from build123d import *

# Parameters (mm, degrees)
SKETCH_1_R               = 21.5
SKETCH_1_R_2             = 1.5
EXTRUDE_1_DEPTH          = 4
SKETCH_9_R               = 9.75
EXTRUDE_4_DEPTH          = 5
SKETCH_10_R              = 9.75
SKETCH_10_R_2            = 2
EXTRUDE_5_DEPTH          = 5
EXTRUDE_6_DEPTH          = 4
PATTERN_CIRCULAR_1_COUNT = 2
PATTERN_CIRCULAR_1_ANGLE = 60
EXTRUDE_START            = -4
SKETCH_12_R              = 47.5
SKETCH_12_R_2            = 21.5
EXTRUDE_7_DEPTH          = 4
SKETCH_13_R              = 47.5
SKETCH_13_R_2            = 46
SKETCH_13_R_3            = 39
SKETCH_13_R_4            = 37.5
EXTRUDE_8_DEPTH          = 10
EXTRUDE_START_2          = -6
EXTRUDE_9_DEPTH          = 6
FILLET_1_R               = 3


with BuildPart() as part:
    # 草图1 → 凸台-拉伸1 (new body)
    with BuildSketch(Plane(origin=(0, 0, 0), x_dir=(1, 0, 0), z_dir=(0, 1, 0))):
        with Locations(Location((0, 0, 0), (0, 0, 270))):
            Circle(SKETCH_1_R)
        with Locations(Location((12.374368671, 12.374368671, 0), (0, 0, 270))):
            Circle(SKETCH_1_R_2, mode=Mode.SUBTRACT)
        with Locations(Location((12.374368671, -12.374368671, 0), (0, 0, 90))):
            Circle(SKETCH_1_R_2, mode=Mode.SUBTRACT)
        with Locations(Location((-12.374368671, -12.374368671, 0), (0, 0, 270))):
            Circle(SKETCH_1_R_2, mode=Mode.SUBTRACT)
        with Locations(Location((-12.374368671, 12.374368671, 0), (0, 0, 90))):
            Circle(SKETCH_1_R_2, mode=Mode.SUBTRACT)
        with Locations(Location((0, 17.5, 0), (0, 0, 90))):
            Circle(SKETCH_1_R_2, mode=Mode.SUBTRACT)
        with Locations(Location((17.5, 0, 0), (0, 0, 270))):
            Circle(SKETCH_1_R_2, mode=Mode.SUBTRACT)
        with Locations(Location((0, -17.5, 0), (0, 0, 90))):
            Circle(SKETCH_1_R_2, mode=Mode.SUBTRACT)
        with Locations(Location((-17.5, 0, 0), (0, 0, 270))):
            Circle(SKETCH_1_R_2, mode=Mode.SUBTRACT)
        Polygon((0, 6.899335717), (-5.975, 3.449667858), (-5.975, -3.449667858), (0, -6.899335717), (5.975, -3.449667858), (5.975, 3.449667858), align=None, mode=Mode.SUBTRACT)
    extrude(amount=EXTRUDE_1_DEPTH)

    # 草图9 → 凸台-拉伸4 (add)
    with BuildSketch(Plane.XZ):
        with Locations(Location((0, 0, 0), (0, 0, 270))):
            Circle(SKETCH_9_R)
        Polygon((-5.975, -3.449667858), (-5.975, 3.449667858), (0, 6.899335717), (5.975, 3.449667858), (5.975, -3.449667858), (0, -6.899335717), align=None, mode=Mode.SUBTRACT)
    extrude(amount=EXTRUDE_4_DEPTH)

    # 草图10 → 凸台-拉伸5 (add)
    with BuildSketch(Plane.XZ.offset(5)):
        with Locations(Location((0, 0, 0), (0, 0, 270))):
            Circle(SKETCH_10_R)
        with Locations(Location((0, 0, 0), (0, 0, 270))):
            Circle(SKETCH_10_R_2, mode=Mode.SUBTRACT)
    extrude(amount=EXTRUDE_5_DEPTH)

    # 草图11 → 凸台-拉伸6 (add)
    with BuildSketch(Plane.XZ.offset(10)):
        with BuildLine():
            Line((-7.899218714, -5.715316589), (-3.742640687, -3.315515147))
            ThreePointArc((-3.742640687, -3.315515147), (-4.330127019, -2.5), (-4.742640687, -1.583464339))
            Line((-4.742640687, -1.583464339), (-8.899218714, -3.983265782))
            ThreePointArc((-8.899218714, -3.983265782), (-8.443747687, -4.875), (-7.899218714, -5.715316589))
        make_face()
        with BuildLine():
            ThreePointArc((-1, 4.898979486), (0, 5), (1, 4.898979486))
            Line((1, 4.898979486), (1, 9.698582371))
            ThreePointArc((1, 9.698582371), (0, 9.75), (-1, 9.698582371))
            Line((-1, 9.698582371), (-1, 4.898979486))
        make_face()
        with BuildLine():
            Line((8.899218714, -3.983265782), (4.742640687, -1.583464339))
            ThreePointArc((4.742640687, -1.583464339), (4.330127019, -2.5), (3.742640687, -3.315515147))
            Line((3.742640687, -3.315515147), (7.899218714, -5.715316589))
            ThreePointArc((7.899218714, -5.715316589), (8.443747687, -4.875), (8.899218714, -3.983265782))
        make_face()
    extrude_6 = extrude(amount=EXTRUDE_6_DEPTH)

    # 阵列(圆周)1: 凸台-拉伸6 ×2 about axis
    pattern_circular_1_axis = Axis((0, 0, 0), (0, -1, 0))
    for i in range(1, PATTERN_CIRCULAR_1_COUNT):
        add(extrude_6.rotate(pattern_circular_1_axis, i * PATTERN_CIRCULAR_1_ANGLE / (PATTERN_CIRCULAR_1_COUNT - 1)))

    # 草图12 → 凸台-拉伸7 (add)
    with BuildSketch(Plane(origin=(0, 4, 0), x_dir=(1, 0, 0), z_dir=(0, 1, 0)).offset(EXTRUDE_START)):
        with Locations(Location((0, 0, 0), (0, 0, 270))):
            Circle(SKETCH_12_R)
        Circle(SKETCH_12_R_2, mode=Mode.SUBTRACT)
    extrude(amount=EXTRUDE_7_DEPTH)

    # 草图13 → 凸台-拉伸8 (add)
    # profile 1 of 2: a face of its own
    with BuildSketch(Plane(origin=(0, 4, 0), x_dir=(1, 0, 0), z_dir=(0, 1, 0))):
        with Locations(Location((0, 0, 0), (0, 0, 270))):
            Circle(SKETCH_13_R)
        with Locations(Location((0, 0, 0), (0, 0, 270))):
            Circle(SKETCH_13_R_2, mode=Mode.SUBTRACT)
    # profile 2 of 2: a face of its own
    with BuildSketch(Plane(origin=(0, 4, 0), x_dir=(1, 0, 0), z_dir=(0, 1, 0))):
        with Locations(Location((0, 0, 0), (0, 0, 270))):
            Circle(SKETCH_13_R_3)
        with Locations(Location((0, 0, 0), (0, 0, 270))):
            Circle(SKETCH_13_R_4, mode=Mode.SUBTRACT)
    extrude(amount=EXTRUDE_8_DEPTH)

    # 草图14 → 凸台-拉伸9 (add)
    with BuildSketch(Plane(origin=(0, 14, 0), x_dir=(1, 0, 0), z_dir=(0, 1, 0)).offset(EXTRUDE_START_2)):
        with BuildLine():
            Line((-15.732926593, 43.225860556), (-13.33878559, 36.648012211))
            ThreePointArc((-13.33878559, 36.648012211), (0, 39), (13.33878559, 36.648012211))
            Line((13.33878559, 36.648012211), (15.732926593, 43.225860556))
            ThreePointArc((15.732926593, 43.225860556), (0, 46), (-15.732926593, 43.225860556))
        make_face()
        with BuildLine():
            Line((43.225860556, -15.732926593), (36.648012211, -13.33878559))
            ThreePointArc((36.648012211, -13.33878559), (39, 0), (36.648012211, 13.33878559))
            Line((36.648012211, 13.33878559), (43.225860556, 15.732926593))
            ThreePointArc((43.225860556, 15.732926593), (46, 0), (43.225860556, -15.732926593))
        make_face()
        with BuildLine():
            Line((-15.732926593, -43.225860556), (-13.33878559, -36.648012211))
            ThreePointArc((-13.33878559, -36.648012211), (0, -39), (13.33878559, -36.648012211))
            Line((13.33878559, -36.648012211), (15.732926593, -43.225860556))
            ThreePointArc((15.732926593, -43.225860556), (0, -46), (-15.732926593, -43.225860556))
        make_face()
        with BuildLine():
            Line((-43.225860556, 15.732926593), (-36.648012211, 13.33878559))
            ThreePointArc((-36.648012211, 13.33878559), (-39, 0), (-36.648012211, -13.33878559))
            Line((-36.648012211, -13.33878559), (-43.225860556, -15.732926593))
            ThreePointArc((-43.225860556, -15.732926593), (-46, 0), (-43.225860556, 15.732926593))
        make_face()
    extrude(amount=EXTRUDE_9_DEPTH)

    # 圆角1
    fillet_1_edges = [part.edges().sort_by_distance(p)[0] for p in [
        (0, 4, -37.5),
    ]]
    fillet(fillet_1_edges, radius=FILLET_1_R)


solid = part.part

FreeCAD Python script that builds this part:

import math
import FreeCAD as App
import Part
import Sketcher
Q = App.Units.Quantity


def edges_at(feature, points):
    """Names of the edges that pass closest to the given points."""
    edges = feature.Shape.Edges
    near = lambda p: min(range(len(edges)), key=lambda i: edges[i].distToShape(Part.Vertex(*p))[0])
    return sorted({f"Edge{near(p) + 1}" for p in points})


def add_polygon(sketch, points):
    """Adds a closed chain of lines whose ends are joined by coincident constraints."""
    first, n = sketch.GeometryCount, len(points)
    for a, b in zip(points, points[1:] + points[:1]):
        sketch.addGeometry(Part.LineSegment(App.Vector(*a, 0), App.Vector(*b, 0)), False)
    for i in range(n):
        sketch.addConstraint(Sketcher.Constraint("Coincident", first + i, 2, first + (i + 1) % n, 1))

doc = App.newDocument("Part")
body = doc.addObject("PartDesign::Body", "Body")

# Sketch on XZ plane
sketch1 = body.newObject("Sketcher::SketchObject", "Sketch")
sketch1.AttachmentSupport = (doc.getObject("XZ_Plane"), [""])
sketch1.MapMode = "FlatFace"
sketch1.addGeometry(Part.Circle(App.Vector(0, 0, 0), App.Vector(0, 0, 1), 21.5), False)  # 0
sketch1.addGeometry(Part.Circle(App.Vector(-12.4, -12.4, 0), App.Vector(0, 0, 1), 1.5), False)  # 1
sketch1.addGeometry(Part.Circle(App.Vector(0, -17.5, 0), App.Vector(0, 0, 1), 1.5), False)  # 2
sketch1.addGeometry(Part.Circle(App.Vector(-17.5, 0, 0), App.Vector(0, 0, 1), 1.5), False)  # 3
sketch1.addGeometry(Part.Circle(App.Vector(-12.4, 12.4, 0), App.Vector(0, 0, 1), 1.5), False)  # 4
sketch1.addGeometry(Part.Circle(App.Vector(12.4, -12.4, 0), App.Vector(0, 0, 1), 1.5), False)  # 5
sketch1.addGeometry(Part.Circle(App.Vector(17.5, 0, 0), App.Vector(0, 0, 1), 1.5), False)  # 6
add_polygon(sketch1, [(-6, -3.4), (0, -6.9), (6, -3.4), (6, 3.4), (0, 6.9), (-6, 3.4)])  # lines 7-12
sketch1.addGeometry(Part.Circle(App.Vector(0, 17.5, 0), App.Vector(0, 0, 1), 1.5), False)  # 13
sketch1.addGeometry(Part.Circle(App.Vector(12.4, 12.4, 0), App.Vector(0, 0, 1), 1.5), False)  # 14
sketch1.addConstraint([
    Sketcher.Constraint("Vertical", 9),
    Sketcher.Constraint("Vertical", 12),
    Sketcher.Constraint("Coincident", 0, 3, -1, 1),
    Sketcher.Constraint("Equal", 1, 2),
    Sketcher.Constraint("Equal", 2, 3),
    Sketcher.Constraint("Equal", 3, 4),
    Sketcher.Constraint("Equal", 4, 5),
    Sketcher.Constraint("Equal", 5, 6),
    Sketcher.Constraint("Equal", 6, 13),
    Sketcher.Constraint("Equal", 13, 14),
    Sketcher.Constraint("Symmetric", 4, 3, 5, 3, -1, 1),
    Sketcher.Constraint("Symmetric", 3, 3, 6, 3, -1, 1),
    Sketcher.Constraint("Symmetric", 2, 3, 13, 3, -1, 1),
    Sketcher.Constraint("Symmetric", 1, 3, 14, 3, -1, 1),
    Sketcher.Constraint("Symmetric", 7, 2, 10, 2, -1, 1),
    Sketcher.Constraint("Symmetric", 8, 2, 11, 2, -1, 1),
    Sketcher.Constraint("Symmetric", 1, 3, 5, 3, -2),
    Sketcher.Constraint("PointOnObject", 2, 3, -2),
    Sketcher.Constraint("PointOnObject", 3, 3, -1),
    Sketcher.Constraint("PointOnObject", 7, 2, -2),
    Sketcher.Constraint("Parallel", 7, 10),
    Sketcher.Constraint("Horizontal", 9, 2, 11, 2),
    Sketcher.Constraint("Diameter", 0, 43.0),
    Sketcher.Constraint("Diameter", 1, 3.0),
    Sketcher.Constraint("Angle", 7, Q("-30 deg")),
    Sketcher.Constraint("DistanceY", 2, 3, -1, 1, 17.5),
    Sketcher.Constraint("DistanceX", 3, 3, -1, 1, 17.5),
    Sketcher.Constraint("DistanceX", 11, 2, 9, 2, 11.95),
    Sketcher.Constraint("DistanceY", 5, 3, 8, 2, 8.924701),
    Sketcher.Constraint("DistanceY", 9, 1, 9, 2, 6.899336),
    Sketcher.Constraint("DistanceX", 1, 3, -1, 1, 12.374369),
])
pad1 = body.newObject("PartDesign::Pad", "Pad")
pad1.Profile = sketch1
pad1.Length = 4
pad1.Reversed = True

# Sketch on XZ plane
sketch2 = body.newObject("Sketcher::SketchObject", "Sketch001")
sketch2.AttachmentSupport = (doc.getObject("XZ_Plane"), [""])
sketch2.MapMode = "FlatFace"
sketch2.addGeometry(Part.Circle(App.Vector(0, 0, 0), App.Vector(0, 0, 1), 10), False)  # 0
add_polygon(sketch2, [(0, -7), (-6, -3), (-6, 3), (0, 7), (6, 3), (6, -3)])  # lines 1-6
sketch2.addConstraint([
    Sketcher.Constraint("Vertical", 2),
    Sketcher.Constraint("Vertical", 5),
    Sketcher.Constraint("Coincident", 0, 3, -1, 1),
    Sketcher.Constraint("Symmetric", 1, 2, 4, 2, -1, 1),
    Sketcher.Constraint("Symmetric", 3, 2, 6, 2, -1, 1),
    Sketcher.Constraint("PointOnObject", 3, 2, -2),
    Sketcher.Constraint("Parallel", 3, 6),
    Sketcher.Constraint("Horizontal", 2, 2, 4, 2),
    Sketcher.Constraint("Diameter", 0, 19.5),
    Sketcher.Constraint("Angle", 1, Q("150 deg")),
    Sketcher.Constraint("DistanceX", 2, 2, 4, 2, 11.95),
    Sketcher.Constraint("DistanceY", 2, 1, 2, 2, 6.899336),
])
pad2 = body.newObject("PartDesign::Pad", "Pad001")
pad2.Profile = sketch2
pad2.Length = 5

# Sketch on XZ plane
sketch3 = body.newObject("Sketcher::SketchObject", "Sketch002")
sketch3.AttachmentSupport = (doc.getObject("XZ_Plane"), [""])
sketch3.MapMode = "FlatFace"
sketch3.AttachmentOffset = App.Placement(App.Vector(0, 0, 5), App.Rotation())
sketch3.addGeometry([
    Part.Circle(App.Vector(0, 0, 0), App.Vector(0, 0, 1), 9.8),
    Part.Circle(App.Vector(0, 0, 0), App.Vector(0, 0, 1), 2),
], False)
sketch3.addConstraint([
    Sketcher.Constraint("Coincident", 0, 3, -1, 1),
    Sketcher.Constraint("Coincident", 1, 3, -1, 1),
    Sketcher.Constraint("Diameter", 1, 4.0),
    Sketcher.Constraint("Diameter", 0, 19.5),
])
pad3 = body.newObject("PartDesign::Pad", "Pad002")
pad3.Profile = sketch3
pad3.Length = 5

# Sketch on XZ plane
sketch4 = body.newObject("Sketcher::SketchObject", "Sketch003")
sketch4.AttachmentSupport = (doc.getObject("XZ_Plane"), [""])
sketch4.MapMode = "FlatFace"
sketch4.AttachmentOffset = App.Placement(App.Vector(0, 0, 10), App.Rotation())
sketch4.addGeometry([
    Part.LineSegment(App.Vector(-7.9, -5.7, 0), App.Vector(-3.7, -3.3, 0)),  # 0
    Part.ArcOfCircle(Part.Circle(App.Vector(0, 0, 0), App.Vector(0, 0, 1), 5), math.radians(-162), math.radians(-138)),  # 1
    Part.LineSegment(App.Vector(-4.7, -1.6, 0), App.Vector(-8.9, -4, 0)),  # 2
    Part.ArcOfCircle(Part.Circle(App.Vector(0, 0, 0), App.Vector(0, 0, 1), 9.8), math.radians(-155.89), math.radians(-144.11)),  # 3
    Part.ArcOfCircle(Part.Circle(App.Vector(0, 0, 0), App.Vector(0, 0, 1), 5), math.radians(78), math.radians(102)),  # 4
    Part.LineSegment(App.Vector(1, 4.9, 0), App.Vector(1, 9.7, 0)),  # 5
    Part.ArcOfCircle(Part.Circle(App.Vector(0, 0, 0), App.Vector(0, 0, 1), 9.8), math.radians(84.11), math.radians(95.89)),  # 6
    Part.LineSegment(App.Vector(-1, 9.7, 0), App.Vector(-1, 4.9, 0)),  # 7
    Part.LineSegment(App.Vector(8.9, -4, 0), App.Vector(4.7, -1.6, 0)),  # 8
    Part.ArcOfCircle(Part.Circle(App.Vector(0, 0, 0), App.Vector(0, 0, 1), 5), math.radians(-42), math.radians(-18)),  # 9
    Part.LineSegment(App.Vector(3.7, -3.3, 0), App.Vector(7.9, -5.7, 0)),  # 10
    Part.ArcOfCircle(Part.Circle(App.Vector(0, 0, 0), App.Vector(0, 0, 1), 9.8), math.radians(-35.89), math.radians(-24.11)),  # 11
], False)
sketch4.addConstraint([
    Sketcher.Constraint("Coincident", 0, 2, 1, 2),
    Sketcher.Constraint("Coincident", 1, 1, 2, 1),
    Sketcher.Constraint("Coincident", 2, 2, 3, 1),
    Sketcher.Constraint("Coincident", 3, 2, 0, 1),
    Sketcher.Constraint("Coincident", 4, 1, 5, 1),
    Sketcher.Constraint("Coincident", 5, 2, 6, 1),
    Sketcher.Constraint("Coincident", 6, 2, 7, 1),
    Sketcher.Constraint("Coincident", 7, 2, 4, 2),
    Sketcher.Constraint("Coincident", 8, 2, 9, 2),
    Sketcher.Constraint("Coincident", 9, 1, 10, 1),
    Sketcher.Constraint("Coincident", 10, 2, 11, 1),
    Sketcher.Constraint("Coincident", 11, 2, 8, 1),
    Sketcher.Constraint("Vertical", 5),
    Sketcher.Constraint("Vertical", 7),
    Sketcher.Constraint("Coincident", 1, 3, -1, 1),
    Sketcher.Constraint("Coincident", 3, 3, -1, 1),
    Sketcher.Constraint("Coincident", 4, 3, -1, 1),
    Sketcher.Constraint("Coincident", 6, 3, -1, 1),
    Sketcher.Constraint("Coincident", 9, 3, -1, 1),
    Sketcher.Constraint("Coincident", 11, 3, -1, 1),
    Sketcher.Constraint("Equal", 1, 4),
    Sketcher.Constraint("Equal", 3, 6),
    Sketcher.Constraint("Equal", 4, 9),
    Sketcher.Constraint("Equal", 6, 11),
    Sketcher.Constraint("Parallel", 0, 2),
    Sketcher.Constraint("Parallel", 8, 10),
    Sketcher.Constraint("Horizontal", 5, 2, 6, 2),
    Sketcher.Constraint("Horizontal", 1, 1, 8, 2),
    Sketcher.Constraint("Horizontal", 0, 2, 9, 1),
    Sketcher.Constraint("Horizontal", 3, 2, 10, 2),
    Sketcher.Constraint("Equal", 0, 2),
    Sketcher.Constraint("Radius", 1, 5.0),
    Sketcher.Constraint("Angle", 0, Q("30 deg")),
    Sketcher.Constraint("Radius", 3, 9.75),
    Sketcher.Constraint("DistanceX", -1, 1, 4, 1, 1.0),
    Sketcher.Constraint("DistanceX", 1, 1, 0, 2, 1.0),
])
pad4 = body.newObject("PartDesign::Pad", "Pad003")
pad4.Profile = sketch4
pad4.Length = 4
doc.recompute()

polarpattern = body.newObject("PartDesign::PolarPattern", "PolarPattern")
polarpattern.Originals = [pad4]
polarpattern.Axis = (doc.getObject("Y_Axis"), [""])
polarpattern.Angle = 60
polarpattern.Occurrences = 2
polarpattern.Reversed = True
body.Tip = polarpattern

# Sketch on XZ plane
sketch5 = body.newObject("Sketcher::SketchObject", "Sketch004")
sketch5.AttachmentSupport = (doc.getObject("XZ_Plane"), [""])
sketch5.MapMode = "FlatFace"
sketch5.addGeometry([
    Part.Circle(App.Vector(0, 0, 0), App.Vector(0, 0, 1), 48),
    Part.Circle(App.Vector(0, 0, 0), App.Vector(0, 0, 1), 22),
], False)
sketch5.addConstraint([
    Sketcher.Constraint("Coincident", 0, 3, -1, 1),
    Sketcher.Constraint("Coincident", 1, 3, -1, 1),
    Sketcher.Constraint("Diameter", 0, 95.0),
    Sketcher.Constraint("Diameter", 1, 43.0),
])
pad5 = body.newObject("PartDesign::Pad", "Pad004")
pad5.Profile = sketch5
pad5.Length = 4
pad5.Reversed = True

# Sketch on XZ plane
sketch6 = body.newObject("Sketcher::SketchObject", "Sketch005")
sketch6.AttachmentSupport = (doc.getObject("XZ_Plane"), [""])
sketch6.MapMode = "FlatFace"
sketch6.AttachmentOffset = App.Placement(App.Vector(0, 0, -4), App.Rotation())
sketch6.addGeometry([
    Part.Circle(App.Vector(0, 0, 0), App.Vector(0, 0, 1), 48),
    Part.Circle(App.Vector(0, 0, 0), App.Vector(0, 0, 1), 46),
    Part.Circle(App.Vector(0, 0, 0), App.Vector(0, 0, 1), 39),
    Part.Circle(App.Vector(0, 0, 0), App.Vector(0, 0, 1), 38),
], False)
sketch6.addConstraint([
    Sketcher.Constraint("Coincident", 0, 3, -1, 1),
    Sketcher.Constraint("Coincident", 1, 3, -1, 1),
    Sketcher.Constraint("Coincident", 2, 3, -1, 1),
    Sketcher.Constraint("Coincident", 3, 3, -1, 1),
    Sketcher.Constraint("Diameter", 0, 95.0),
    Sketcher.Constraint("Diameter", 1, 92.0),
    Sketcher.Constraint("Diameter", 2, 78.0),
    Sketcher.Constraint("Diameter", 3, 75.0),
])
pad6 = body.newObject("PartDesign::Pad", "Pad005")
pad6.Profile = sketch6
pad6.Length = 10
pad6.Reversed = True

# Sketch on XZ plane
sketch7 = body.newObject("Sketcher::SketchObject", "Sketch006")
sketch7.AttachmentSupport = (doc.getObject("XZ_Plane"), [""])
sketch7.MapMode = "FlatFace"
sketch7.AttachmentOffset = App.Placement(App.Vector(0, 0, -8), App.Rotation())
sketch7.addGeometry([
    Part.LineSegment(App.Vector(-16, -43, 0), App.Vector(-13, -37, 0)),  # 0
    Part.ArcOfCircle(Part.Circle(App.Vector(0, 0, 0), App.Vector(0, 0, 1), 39), math.radians(-110), math.radians(-70)),  # 1
    Part.LineSegment(App.Vector(13, -37, 0), App.Vector(16, -43, 0)),  # 2
    Part.ArcOfCircle(Part.Circle(App.Vector(0, 0, 0), App.Vector(0, 0, 1), 46), math.radians(-110), math.radians(-70)),  # 3
    Part.LineSegment(App.Vector(37, 13, 0), App.Vector(43, 16, 0)),  # 4
    Part.ArcOfCircle(Part.Circle(App.Vector(0, 0, 0), App.Vector(0, 0, 1), 46), math.radians(-20), math.radians(20)),  # 5
    Part.LineSegment(App.Vector(43, -16, 0), App.Vector(37, -13, 0)),  # 6
    Part.ArcOfCircle(Part.Circle(App.Vector(0, 0, 0), App.Vector(0, 0, 1), 39), math.radians(-20), math.radians(20)),  # 7
    Part.LineSegment(App.Vector(-13, 37, 0), App.Vector(-16, 43, 0)),  # 8
    Part.ArcOfCircle(Part.Circle(App.Vector(0, 0, 0), App.Vector(0, 0, 1), 46), math.radians(70), math.radians(110)),  # 9
    Part.LineSegment(App.Vector(16, 43, 0), App.Vector(13, 37, 0)),  # 10
    Part.ArcOfCircle(Part.Circle(App.Vector(0, 0, 0), App.Vector(0, 0, 1), 39), math.radians(70), math.radians(110)),  # 11
    Part.LineSegment(App.Vector(-37, -13, 0), App.Vector(-43, -16, 0)),  # 12
    Part.ArcOfCircle(Part.Circle(App.Vector(0, 0, 0), App.Vector(0, 0, 1), 46), math.radians(160), math.radians(200)),  # 13
    Part.LineSegment(App.Vector(-43, 16, 0), App.Vector(-37, 13, 0)),  # 14
    Part.ArcOfCircle(Part.Circle(App.Vector(0, 0, 0), App.Vector(0, 0, 1), 39), math.radians(160), math.radians(200)),  # 15
], False)
sketch7.addConstraint([
    Sketcher.Constraint("Coincident", 0, 2, 1, 1),
    Sketcher.Constraint("Coincident", 1, 2, 2, 1),
    Sketcher.Constraint("Coincident", 2, 2, 3, 2),
    Sketcher.Constraint("Coincident", 3, 1, 0, 1),
    Sketcher.Constraint("Coincident", 4, 2, 5, 2),
    Sketcher.Constraint("Coincident", 5, 1, 6, 1),
    Sketcher.Constraint("Coincident", 6, 2, 7, 1),
    Sketcher.Constraint("Coincident", 7, 2, 4, 1),
    Sketcher.Constraint("Coincident", 8, 2, 9, 2),
    Sketcher.Constraint("Coincident", 9, 1, 10, 1),
    Sketcher.Constraint("Coincident", 10, 2, 11, 1),
    Sketcher.Constraint("Coincident", 11, 2, 8, 1),
    Sketcher.Constraint("Coincident", 12, 2, 13, 2),
    Sketcher.Constraint("Coincident", 13, 1, 14, 1),
    Sketcher.Constraint("Coincident", 14, 2, 15, 1),
    Sketcher.Constraint("Coincident", 15, 2, 12, 1),
    Sketcher.Constraint("Coincident", 1, 3, -1, 1),
    Sketcher.Constraint("Coincident", 3, 3, -1, 1),
    Sketcher.Constraint("Coincident", 5, 3, -1, 1),
    Sketcher.Constraint("Coincident", 7, 3, -1, 1),
    Sketcher.Constraint("Coincident", 9, 3, -1, 1),
    Sketcher.Constraint("Coincident", 11, 3, -1, 1),
    Sketcher.Constraint("Coincident", 13, 3, -1, 1),
    Sketcher.Constraint("Coincident", 15, 3, -1, 1),
    Sketcher.Constraint("Equal", 3, 5),
    Sketcher.Constraint("Equal", 1, 7),
    Sketcher.Constraint("Equal", 5, 9),
    Sketcher.Constraint("Equal", 7, 11),
    Sketcher.Constraint("Equal", 9, 13),
    Sketcher.Constraint("Equal", 11, 15),
    Sketcher.Constraint("Perpendicular", 2, 4),
    Sketcher.Constraint("Perpendicular", 0, 6),
    Sketcher.Constraint("Perpendicular", 4, 8),
    Sketcher.Constraint("Perpendicular", 6, 10),
    Sketcher.Constraint("Perpendicular", 8, 12),
    Sketcher.Constraint("Perpendicular", 10, 14),
    Sketcher.Constraint("Horizontal", 0, 2, 1, 2),
    Sketcher.Constraint("Horizontal", 2, 2, 3, 1),
    Sketcher.Constraint("Horizontal", 8, 2, 9, 1),
    Sketcher.Constraint("Horizontal", 5, 1, 12, 2),
    Sketcher.Constraint("Horizontal", 4, 2, 13, 1),
    Sketcher.Constraint("Vertical", 4, 2, 5, 1),
    Sketcher.Constraint("Vertical", 3, 1, 8, 2),
    Sketcher.Constraint("Radius", 1, 39.0),
    Sketcher.Constraint("Radius", 3, 46.0),
    Sketcher.Constraint("Angle", 0, Q("70 deg")),
    Sketcher.Constraint("DistanceY", 2, 2, -1, 1, 43.225861),
    Sketcher.Constraint("DistanceX", -1, 1, 4, 2, 43.225861),
])
pad7 = body.newObject("PartDesign::Pad", "Pad006")
pad7.Profile = sketch7
pad7.Length = 6
pad7.Reversed = True
doc.recompute()

fillet = body.newObject("PartDesign::Fillet", "Fillet")
fillet.Base = (pad7, edges_at(pad7, [(0, 4, -37.5)]))
fillet.Radius = 3

doc.recompute()
